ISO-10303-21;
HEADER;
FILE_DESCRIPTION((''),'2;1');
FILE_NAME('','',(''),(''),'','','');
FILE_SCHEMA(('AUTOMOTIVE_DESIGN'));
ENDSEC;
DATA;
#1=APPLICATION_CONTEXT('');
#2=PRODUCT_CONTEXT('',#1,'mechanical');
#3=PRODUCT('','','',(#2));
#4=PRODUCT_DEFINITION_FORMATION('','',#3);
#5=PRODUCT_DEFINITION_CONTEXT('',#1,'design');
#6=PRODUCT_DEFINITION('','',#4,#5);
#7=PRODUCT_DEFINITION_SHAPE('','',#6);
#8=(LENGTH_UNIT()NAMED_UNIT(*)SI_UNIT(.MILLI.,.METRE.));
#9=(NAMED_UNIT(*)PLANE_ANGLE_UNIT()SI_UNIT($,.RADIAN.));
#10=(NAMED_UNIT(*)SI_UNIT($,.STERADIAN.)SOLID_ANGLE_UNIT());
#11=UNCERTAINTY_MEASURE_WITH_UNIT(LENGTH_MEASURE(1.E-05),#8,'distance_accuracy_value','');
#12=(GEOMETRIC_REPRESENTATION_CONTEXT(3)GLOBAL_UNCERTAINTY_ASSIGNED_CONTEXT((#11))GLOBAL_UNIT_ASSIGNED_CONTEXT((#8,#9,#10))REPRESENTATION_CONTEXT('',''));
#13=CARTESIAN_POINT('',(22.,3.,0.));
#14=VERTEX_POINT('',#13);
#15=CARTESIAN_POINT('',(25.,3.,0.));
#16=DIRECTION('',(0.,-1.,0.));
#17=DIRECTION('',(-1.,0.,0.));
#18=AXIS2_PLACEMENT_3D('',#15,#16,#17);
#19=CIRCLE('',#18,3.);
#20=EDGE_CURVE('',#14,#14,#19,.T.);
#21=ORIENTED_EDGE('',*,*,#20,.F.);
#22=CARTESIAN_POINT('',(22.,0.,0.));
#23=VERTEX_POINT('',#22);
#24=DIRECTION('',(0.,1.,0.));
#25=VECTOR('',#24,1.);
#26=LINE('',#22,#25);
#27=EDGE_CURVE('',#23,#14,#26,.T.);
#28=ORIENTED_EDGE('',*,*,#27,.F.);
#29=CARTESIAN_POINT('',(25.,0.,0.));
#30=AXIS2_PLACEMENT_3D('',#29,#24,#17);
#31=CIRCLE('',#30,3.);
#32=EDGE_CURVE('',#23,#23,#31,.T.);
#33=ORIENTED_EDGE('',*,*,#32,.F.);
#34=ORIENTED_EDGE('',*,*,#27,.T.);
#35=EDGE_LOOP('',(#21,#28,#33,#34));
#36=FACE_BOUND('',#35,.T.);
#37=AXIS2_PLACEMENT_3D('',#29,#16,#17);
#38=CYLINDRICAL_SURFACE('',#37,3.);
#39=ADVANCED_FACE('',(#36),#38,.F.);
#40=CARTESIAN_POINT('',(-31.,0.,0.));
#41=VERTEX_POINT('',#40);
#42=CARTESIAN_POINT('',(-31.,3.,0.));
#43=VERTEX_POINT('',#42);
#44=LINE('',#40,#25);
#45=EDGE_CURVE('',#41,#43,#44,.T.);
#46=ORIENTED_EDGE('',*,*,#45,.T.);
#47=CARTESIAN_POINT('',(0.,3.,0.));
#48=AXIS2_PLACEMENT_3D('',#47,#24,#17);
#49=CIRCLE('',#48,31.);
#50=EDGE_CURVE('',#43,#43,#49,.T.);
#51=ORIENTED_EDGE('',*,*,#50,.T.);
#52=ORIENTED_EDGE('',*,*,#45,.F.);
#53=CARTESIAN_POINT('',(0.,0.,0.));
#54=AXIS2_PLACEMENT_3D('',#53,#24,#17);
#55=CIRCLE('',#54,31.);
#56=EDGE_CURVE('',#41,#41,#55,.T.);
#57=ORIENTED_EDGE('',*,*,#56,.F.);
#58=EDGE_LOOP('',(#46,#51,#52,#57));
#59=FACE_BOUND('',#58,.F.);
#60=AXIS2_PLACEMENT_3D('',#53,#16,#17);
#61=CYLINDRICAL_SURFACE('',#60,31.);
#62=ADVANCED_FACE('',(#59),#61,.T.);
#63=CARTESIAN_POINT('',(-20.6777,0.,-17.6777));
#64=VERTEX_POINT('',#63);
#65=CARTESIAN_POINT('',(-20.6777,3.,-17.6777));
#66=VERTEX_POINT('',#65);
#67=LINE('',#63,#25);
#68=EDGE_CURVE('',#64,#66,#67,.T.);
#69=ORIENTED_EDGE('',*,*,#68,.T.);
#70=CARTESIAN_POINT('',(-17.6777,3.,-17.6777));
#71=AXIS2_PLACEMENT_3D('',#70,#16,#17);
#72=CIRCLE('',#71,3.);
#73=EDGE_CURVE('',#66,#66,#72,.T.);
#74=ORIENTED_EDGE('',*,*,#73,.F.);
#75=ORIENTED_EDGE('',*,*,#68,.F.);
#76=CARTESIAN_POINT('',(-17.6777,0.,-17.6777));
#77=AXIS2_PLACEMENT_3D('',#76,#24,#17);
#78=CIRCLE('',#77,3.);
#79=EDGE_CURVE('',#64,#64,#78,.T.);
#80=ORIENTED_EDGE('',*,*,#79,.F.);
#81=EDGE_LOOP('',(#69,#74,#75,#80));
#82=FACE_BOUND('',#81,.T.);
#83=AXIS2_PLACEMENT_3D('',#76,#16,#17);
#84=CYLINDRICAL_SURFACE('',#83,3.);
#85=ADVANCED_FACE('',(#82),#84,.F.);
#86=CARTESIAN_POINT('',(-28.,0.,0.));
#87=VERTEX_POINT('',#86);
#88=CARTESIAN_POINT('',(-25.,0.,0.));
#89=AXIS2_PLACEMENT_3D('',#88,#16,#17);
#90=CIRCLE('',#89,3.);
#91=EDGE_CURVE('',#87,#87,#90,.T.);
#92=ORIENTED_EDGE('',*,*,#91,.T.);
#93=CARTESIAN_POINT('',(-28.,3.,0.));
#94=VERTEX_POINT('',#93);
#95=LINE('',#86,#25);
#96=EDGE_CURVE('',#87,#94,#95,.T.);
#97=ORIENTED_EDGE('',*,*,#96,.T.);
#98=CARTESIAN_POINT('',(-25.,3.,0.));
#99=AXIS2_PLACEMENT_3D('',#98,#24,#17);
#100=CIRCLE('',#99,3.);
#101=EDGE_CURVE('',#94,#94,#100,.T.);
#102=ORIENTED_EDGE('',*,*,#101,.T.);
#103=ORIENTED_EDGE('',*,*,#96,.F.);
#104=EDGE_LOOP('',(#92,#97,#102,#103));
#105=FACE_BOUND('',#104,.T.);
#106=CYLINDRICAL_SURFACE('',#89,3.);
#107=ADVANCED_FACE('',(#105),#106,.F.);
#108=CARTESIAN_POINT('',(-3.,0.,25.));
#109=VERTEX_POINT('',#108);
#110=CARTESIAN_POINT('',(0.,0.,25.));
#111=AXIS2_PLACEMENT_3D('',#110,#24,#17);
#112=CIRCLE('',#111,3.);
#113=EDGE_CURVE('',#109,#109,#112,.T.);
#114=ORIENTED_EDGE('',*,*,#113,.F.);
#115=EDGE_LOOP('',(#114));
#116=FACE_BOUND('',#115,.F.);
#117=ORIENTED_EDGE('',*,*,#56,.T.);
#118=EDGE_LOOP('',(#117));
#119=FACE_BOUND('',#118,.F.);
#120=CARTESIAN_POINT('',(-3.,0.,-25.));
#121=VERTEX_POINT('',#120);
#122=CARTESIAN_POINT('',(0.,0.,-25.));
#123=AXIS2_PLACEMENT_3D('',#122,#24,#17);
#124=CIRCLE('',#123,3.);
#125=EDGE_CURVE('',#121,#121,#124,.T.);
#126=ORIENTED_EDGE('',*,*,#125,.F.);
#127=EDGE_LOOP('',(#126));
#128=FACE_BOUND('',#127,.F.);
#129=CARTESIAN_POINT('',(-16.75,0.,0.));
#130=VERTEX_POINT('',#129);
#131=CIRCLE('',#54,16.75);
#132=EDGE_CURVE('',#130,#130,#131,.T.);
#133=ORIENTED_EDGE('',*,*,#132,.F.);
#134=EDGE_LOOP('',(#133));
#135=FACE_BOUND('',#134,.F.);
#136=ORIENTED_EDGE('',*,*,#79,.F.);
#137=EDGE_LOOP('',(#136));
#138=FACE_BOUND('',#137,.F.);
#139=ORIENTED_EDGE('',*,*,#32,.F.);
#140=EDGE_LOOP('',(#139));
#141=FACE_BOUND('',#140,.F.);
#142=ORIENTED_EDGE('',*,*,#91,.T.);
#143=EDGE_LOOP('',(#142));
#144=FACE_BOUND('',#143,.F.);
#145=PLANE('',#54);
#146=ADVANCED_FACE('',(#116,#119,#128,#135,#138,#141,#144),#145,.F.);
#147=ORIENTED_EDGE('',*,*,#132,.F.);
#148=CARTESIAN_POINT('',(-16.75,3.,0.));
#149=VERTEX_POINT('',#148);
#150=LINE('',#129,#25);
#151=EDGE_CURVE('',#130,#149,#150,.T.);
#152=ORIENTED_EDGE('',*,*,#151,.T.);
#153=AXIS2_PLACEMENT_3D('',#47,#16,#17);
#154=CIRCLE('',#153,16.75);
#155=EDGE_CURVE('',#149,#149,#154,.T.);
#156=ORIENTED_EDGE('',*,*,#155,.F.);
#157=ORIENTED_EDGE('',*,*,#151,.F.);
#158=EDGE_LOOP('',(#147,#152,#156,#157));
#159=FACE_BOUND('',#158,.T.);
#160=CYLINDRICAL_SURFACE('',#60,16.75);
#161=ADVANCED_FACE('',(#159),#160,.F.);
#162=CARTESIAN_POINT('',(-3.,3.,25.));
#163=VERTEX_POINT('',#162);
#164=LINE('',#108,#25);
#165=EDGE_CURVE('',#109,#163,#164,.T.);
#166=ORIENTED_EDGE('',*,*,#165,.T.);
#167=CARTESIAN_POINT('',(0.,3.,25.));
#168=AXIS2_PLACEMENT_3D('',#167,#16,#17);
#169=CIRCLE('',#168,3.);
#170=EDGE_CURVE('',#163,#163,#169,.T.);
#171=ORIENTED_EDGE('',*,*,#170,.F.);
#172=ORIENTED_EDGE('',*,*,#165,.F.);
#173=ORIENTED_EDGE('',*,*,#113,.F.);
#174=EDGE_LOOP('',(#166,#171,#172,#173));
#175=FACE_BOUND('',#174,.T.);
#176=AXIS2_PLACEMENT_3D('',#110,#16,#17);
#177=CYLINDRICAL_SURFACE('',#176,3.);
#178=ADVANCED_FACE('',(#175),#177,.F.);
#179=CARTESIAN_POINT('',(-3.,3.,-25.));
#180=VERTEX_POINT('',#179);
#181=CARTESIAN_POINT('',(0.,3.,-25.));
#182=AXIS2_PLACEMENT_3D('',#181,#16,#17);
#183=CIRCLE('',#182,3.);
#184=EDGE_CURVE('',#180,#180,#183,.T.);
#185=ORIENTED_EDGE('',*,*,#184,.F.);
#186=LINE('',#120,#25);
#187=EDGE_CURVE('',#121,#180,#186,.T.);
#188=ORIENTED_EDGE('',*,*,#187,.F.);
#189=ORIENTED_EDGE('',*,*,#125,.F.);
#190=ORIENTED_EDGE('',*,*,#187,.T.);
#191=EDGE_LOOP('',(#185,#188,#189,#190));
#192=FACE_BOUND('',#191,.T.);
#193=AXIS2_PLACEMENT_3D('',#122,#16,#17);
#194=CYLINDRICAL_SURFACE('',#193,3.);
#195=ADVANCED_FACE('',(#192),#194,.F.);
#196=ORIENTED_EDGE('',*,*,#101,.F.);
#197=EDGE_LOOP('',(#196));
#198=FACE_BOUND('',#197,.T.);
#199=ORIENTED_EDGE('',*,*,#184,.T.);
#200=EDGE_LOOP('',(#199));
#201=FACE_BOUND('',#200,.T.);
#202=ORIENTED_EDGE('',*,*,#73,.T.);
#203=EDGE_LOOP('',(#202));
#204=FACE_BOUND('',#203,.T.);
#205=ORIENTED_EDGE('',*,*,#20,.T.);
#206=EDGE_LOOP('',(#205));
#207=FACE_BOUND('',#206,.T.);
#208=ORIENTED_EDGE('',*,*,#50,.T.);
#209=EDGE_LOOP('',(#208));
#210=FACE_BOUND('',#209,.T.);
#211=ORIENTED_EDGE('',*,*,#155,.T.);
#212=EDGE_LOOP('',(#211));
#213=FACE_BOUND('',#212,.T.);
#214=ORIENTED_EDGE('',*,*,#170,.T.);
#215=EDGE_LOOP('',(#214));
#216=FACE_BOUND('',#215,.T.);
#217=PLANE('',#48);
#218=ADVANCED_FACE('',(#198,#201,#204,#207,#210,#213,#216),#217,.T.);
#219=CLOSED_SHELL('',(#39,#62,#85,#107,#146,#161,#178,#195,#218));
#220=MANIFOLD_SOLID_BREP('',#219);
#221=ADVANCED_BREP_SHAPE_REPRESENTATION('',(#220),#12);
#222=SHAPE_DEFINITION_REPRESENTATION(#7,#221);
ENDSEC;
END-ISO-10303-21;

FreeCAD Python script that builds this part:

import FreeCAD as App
import Part
import Sketcher

V = App.Vector
Q = App.Units.Quantity

doc = App.newDocument("Part")
body = doc.addObject("PartDesign::Body", "Body")

sketch1 = body.newObject("Sketcher::SketchObject", "Sketch")
sketch1.AttachmentSupport = (doc.getObject("XZ_Plane"), [""])
sketch1.MapMode = "FlatFace"
sketch1.addGeometry(Part.Circle(V(0, 0, 0), V(0, 0, 1), 31), False)
sketch1.addGeometry(Part.Circle(V(-25, 0, 0), V(0, 0, 1), 3), False)
sketch1.addGeometry(Part.Circle(V(-17.7, -17.7, 0), V(0, 0, 1), 3), False)
sketch1.addGeometry(Part.Circle(V(0, 0, 0), V(0, 0, 1), 16.8), False)
sketch1.addGeometry(Part.Circle(V(0, -25, 0), V(0, 0, 1), 3), False)
sketch1.addGeometry(Part.Circle(V(25, 0, 0), V(0, 0, 1), 3), False)
sketch1.addGeometry(Part.Circle(V(0, 25, 0), V(0, 0, 1), 3), False)
sketch1.addConstraint(Sketcher.Constraint("Coincident", 0, 3, -1, 1))
sketch1.addConstraint(Sketcher.Constraint("Coincident", 3, 3, -1, 1))
sketch1.addConstraint(Sketcher.Constraint("Equal", 1, 2))
sketch1.addConstraint(Sketcher.Constraint("Equal", 2, 4))
sketch1.addConstraint(Sketcher.Constraint("Equal", 4, 5))
sketch1.addConstraint(Sketcher.Constraint("Equal", 5, 6))
sketch1.addConstraint(Sketcher.Constraint("Symmetric", 1, 3, 5, 3, -1, 1))
sketch1.addConstraint(Sketcher.Constraint("Symmetric", 4, 3, 6, 3, -1, 1))
sketch1.addConstraint(Sketcher.Constraint("PointOnObject", 1, 3, -1))
sketch1.addConstraint(Sketcher.Constraint("PointOnObject", 4, 3, -2))
sketch1.addConstraint(Sketcher.Constraint("Diameter", 0, Q("62 mm")))
sketch1.addConstraint(Sketcher.Constraint("Diameter", 1, Q("6 mm")))
sketch1.addConstraint(Sketcher.Constraint("Diameter", 3, Q("33.5 mm")))
sketch1.addConstraint(Sketcher.Constraint("DistanceX", 1, 3, 5, 3, Q("50 mm")))
sketch1.addConstraint(Sketcher.Constraint("DistanceY", 4, 3, -1, 1, Q("25 mm")))
sketch1.addConstraint(Sketcher.Constraint("DistanceX", 2, 3, -1, 1, Q("17.6777 mm")))
sketch1.addConstraint(Sketcher.Constraint("DistanceY", 2, 3, -1, 1, Q("17.6777 mm")))
pad1 = body.newObject("PartDesign::Pad", "Pad")
pad1.Profile = sketch1
pad1.Length = 3
pad1.Reversed = True

doc.recompute()
